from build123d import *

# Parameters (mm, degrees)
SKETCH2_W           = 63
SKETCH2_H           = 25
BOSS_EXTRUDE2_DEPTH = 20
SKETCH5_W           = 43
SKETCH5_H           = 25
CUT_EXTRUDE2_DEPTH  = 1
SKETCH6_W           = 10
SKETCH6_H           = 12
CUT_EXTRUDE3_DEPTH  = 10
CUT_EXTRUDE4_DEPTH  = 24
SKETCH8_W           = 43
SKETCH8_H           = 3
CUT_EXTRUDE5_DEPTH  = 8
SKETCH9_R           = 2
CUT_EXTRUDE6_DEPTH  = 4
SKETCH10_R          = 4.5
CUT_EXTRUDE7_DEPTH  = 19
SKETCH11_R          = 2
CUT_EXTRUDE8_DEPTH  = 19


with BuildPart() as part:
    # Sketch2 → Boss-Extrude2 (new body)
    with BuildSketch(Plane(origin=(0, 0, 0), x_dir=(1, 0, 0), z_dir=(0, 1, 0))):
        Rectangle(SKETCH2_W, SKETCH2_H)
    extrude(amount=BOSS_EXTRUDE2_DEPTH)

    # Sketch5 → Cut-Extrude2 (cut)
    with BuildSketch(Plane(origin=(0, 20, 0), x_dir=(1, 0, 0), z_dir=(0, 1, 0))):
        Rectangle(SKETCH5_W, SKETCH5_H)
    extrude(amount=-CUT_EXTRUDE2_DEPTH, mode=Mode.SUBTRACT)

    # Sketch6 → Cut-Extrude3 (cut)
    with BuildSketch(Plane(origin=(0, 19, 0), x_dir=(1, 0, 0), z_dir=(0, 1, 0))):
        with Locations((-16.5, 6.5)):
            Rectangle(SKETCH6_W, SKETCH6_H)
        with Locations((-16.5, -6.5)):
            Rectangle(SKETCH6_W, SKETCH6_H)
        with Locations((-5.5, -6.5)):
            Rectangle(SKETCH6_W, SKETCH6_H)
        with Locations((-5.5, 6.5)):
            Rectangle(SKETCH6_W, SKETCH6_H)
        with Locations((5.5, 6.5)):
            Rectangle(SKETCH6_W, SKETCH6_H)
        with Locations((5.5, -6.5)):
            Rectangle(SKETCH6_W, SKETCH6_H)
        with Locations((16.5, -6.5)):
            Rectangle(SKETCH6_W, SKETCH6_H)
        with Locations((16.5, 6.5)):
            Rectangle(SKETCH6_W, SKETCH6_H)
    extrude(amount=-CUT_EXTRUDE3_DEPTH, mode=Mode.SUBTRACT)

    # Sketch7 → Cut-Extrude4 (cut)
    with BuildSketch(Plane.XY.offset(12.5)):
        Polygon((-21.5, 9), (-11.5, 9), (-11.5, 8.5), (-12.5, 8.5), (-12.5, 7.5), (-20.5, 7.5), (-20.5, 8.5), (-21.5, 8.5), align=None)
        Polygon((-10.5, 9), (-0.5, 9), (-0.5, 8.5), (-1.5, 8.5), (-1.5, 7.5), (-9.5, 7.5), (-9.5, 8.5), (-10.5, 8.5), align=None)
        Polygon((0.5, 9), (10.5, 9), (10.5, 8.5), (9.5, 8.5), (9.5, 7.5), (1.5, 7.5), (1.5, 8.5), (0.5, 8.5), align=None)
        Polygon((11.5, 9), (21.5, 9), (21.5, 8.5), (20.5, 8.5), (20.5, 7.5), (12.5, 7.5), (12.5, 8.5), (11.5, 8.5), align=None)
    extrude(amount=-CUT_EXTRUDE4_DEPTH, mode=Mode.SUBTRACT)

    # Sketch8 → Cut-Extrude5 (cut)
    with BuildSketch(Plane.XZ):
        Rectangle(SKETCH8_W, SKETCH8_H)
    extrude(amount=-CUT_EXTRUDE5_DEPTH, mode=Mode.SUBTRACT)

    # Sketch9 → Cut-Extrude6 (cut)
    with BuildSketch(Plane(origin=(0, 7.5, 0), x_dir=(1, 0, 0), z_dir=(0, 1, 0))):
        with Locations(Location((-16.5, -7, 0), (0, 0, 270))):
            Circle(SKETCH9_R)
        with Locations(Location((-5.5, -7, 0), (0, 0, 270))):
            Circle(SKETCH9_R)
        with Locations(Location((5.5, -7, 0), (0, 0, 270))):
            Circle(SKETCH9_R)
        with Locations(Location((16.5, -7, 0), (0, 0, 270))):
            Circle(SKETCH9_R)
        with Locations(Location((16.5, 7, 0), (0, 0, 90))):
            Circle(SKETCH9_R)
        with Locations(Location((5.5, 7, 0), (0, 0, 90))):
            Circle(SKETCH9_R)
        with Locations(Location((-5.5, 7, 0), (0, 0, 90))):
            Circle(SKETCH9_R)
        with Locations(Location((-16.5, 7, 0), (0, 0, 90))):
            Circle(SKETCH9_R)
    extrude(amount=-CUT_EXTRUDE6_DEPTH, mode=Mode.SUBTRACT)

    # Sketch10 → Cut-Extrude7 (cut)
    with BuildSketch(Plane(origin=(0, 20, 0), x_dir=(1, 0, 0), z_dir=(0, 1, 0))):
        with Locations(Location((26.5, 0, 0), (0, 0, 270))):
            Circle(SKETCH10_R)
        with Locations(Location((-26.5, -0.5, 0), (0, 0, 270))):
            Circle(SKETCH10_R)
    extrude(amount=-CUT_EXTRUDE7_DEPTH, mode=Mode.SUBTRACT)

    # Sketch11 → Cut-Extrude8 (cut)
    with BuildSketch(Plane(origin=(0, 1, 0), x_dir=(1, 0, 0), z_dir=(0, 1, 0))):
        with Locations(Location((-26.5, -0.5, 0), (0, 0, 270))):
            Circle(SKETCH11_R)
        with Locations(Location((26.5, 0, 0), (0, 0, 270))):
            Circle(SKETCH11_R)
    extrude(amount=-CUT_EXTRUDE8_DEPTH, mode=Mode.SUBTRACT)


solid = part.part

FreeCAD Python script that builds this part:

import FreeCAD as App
import Part
import Sketcher

V = App.Vector
Q = App.Units.Quantity


def add_polygon(sketch, points):
    """Adds a closed chain of lines whose ends are joined by coincident constraints."""
    first, n = sketch.GeometryCount, len(points)
    for a, b in zip(points, points[1:] + points[:1]):
        sketch.addGeometry(Part.LineSegment(App.Vector(*a, 0), App.Vector(*b, 0)), False)
    for i in range(n):
        sketch.addConstraint(Sketcher.Constraint("Coincident", first + i, 2, first + (i + 1) % n, 1))

doc = App.newDocument("Part")
params = doc.addObject("Spreadsheet::Sheet", "Params")
for row, (alias, value) in enumerate([
    ("sketch1_width", "63 mm"),
    ("sketch1_height", "25 mm"),
    ("pad1_length", "20 mm"),
    ("sketch2_width", "43 mm"),
    ("sketch2_height", "25 mm"),
    ("pocket1_length", "1 mm"),
    ("sketch3_width", "10 mm"),
    ("sketch3_height", "12 mm"),
    ("pocket2_length", "10 mm"),
    ("sketch4_width", "10 mm"),
    ("sketch4_width2", "1 mm"),
    ("sketch4_height", "0.5 mm"),
    ("pocket3_length", "24 mm"),
    ("sketch5_width", "43 mm"),
    ("sketch5_height", "3 mm"),
    ("pocket4_length", "8 mm"),
    ("sketch6_diameter", "4 mm"),
    ("pocket5_length", "4 mm"),
    ("sketch7_diameter", "9 mm"),
    ("pocket6_length", "19 mm"),
    ("sketch8_diameter", "4 mm"),
    ("pocket7_length", "19 mm"),
], start=1):
    params.set(f"A{row}", alias)
    params.set(f"B{row}", "=" + value)
    params.setAlias(f"B{row}", alias)

body = doc.addObject("PartDesign::Body", "Body")

# Sketch on XZ plane
sketch1 = doc.addObject("Sketcher::SketchObject", "Sketch")
body.addObject(sketch1)
sketch1.AttachmentSupport = (doc.XZ_Plane, [""])
sketch1.MapMode = "FlatFace"
add_polygon(sketch1, [(-32, -12), (-32, 12), (32, 12), (32, -12)])  # lines 0-3
sketch1.addConstraint([
    Sketcher.Constraint("Vertical", 0),
    Sketcher.Constraint("Horizontal", 1),
    Sketcher.Constraint("Vertical", 2),
    Sketcher.Constraint("Horizontal", 3),
    Sketcher.Constraint("Symmetric", 0, 2, 2, 2, -1, 1),
    Sketcher.Constraint("DistanceX", 1, 1, 1, 2, Q("63 mm")),
    Sketcher.Constraint("DistanceY", 0, 1, 0, 2, Q("25 mm")),
])
sketch1.setExpression("Constraints[9]", "Params.sketch1_width")
sketch1.setExpression("Constraints[10]", "Params.sketch1_height")
pad1 = doc.addObject("PartDesign::Pad", "Pad")
body.addObject(pad1)
pad1.Profile = sketch1
pad1.setExpression("Length", "Params.pad1_length")
pad1.Reversed = True

# Sketch on XZ plane
sketch2 = doc.addObject("Sketcher::SketchObject", "Sketch001")
body.addObject(sketch2)
sketch2.AttachmentSupport = (doc.XZ_Plane, [""])
sketch2.MapMode = "FlatFace"
sketch2.AttachmentOffset = App.Placement(V(0, 0, -20), App.Rotation())
add_polygon(sketch2, [(-22, -12), (-22, 12), (22, 12), (22, -12)])  # lines 0-3
sketch2.addConstraint([
    Sketcher.Constraint("Vertical", 0),
    Sketcher.Constraint("Horizontal", 1),
    Sketcher.Constraint("Vertical", 2),
    Sketcher.Constraint("Horizontal", 3),
    Sketcher.Constraint("Symmetric", 0, 2, 2, 2, -1, 1),
    Sketcher.Constraint("DistanceX", 1, 1, 1, 2, Q("43 mm")),
    Sketcher.Constraint("DistanceY", 0, 1, 0, 2, Q("25 mm")),
])
sketch2.setExpression("Constraints[9]", "Params.sketch2_width")
sketch2.setExpression("Constraints[10]", "Params.sketch2_height")
pocket1 = doc.addObject("PartDesign::Pocket", "Pocket")
body.addObject(pocket1)
pocket1.Profile = sketch2
pocket1.setExpression("Length", "Params.pocket1_length")
pocket1.Reversed = True

# Sketch on XZ plane
sketch3 = doc.addObject("Sketcher::SketchObject", "Sketch002")
body.addObject(sketch3)
sketch3.AttachmentSupport = (doc.XZ_Plane, [""])
sketch3.MapMode = "FlatFace"
sketch3.AttachmentOffset = App.Placement(V(0, 0, -19), App.Rotation())
add_polygon(sketch3, [(-21.5, -12.5), (-21.5, -0.5), (-11.5, -0.5), (-11.5, -12.5)])  # lines 0-3
add_polygon(sketch3, [(-21.5, 0.5), (-21.5, 12.5), (-11.5, 12.5), (-11.5, 0.5)])  # lines 4-7
add_polygon(sketch3, [(-10.5, 0.5), (-10.5, 12.5), (-0.5, 12.5), (-0.5, 0.5)])  # lines 8-11
add_polygon(sketch3, [(-10.5, -12.5), (-10.5, -0.5), (-0.5, -0.5), (-0.5, -12.5)])  # lines 12-15
add_polygon(sketch3, [(0.5, -12.5), (0.5, -0.5), (10.5, -0.5), (10.5, -12.5)])  # lines 16-19
add_polygon(sketch3, [(0.5, 0.5), (0.5, 12.5), (10.5, 12.5), (10.5, 0.5)])  # lines 20-23
add_polygon(sketch3, [(11.5, 0.5), (11.5, 12.5), (21.5, 12.5), (21.5, 0.5)])  # lines 24-27
add_polygon(sketch3, [(11.5, -12.5), (11.5, -0.5), (21.5, -0.5), (21.5, -12.5)])  # lines 28-31
sketch3.addConstraint([
    Sketcher.Constraint("Vertical", 0),
    Sketcher.Constraint("Horizontal", 1),
    Sketcher.Constraint("Vertical", 2),
    Sketcher.Constraint("Horizontal", 3),
    Sketcher.Constraint("Vertical", 4),
    Sketcher.Constraint("Horizontal", 5),
    Sketcher.Constraint("Vertical", 6),
    Sketcher.Constraint("Horizontal", 7),
    Sketcher.Constraint("Vertical", 8),
    Sketcher.Constraint("Horizontal", 9),
    Sketcher.Constraint("Vertical", 10),
    Sketcher.Constraint("Horizontal", 11),
    Sketcher.Constraint("Vertical", 12),
    Sketcher.Constraint("Horizontal", 13),
    Sketcher.Constraint("Vertical", 14),
    Sketcher.Constraint("Horizontal", 15),
    Sketcher.Constraint("Vertical", 16),
    Sketcher.Constraint("Horizontal", 17),
    Sketcher.Constraint("Vertical", 18),
    Sketcher.Constraint("Horizontal", 19),
    Sketcher.Constraint("Vertical", 20),
    Sketcher.Constraint("Horizontal", 21),
    Sketcher.Constraint("Vertical", 22),
    Sketcher.Constraint("Horizontal", 23),
    Sketcher.Constraint("Vertical", 24),
    Sketcher.Constraint("Horizontal", 25),
    Sketcher.Constraint("Vertical", 26),
    Sketcher.Constraint("Horizontal", 27),
    Sketcher.Constraint("Vertical", 28),
    Sketcher.Constraint("Horizontal", 29),
    Sketcher.Constraint("Vertical", 30),
    Sketcher.Constraint("Horizontal", 31),
    Sketcher.Constraint("Symmetric", 10, 2, 16, 2, -1, 1),
    Sketcher.Constraint("Symmetric", 8, 2, 18, 2, -1, 1),
    Sketcher.Constraint("Symmetric", 14, 2, 20, 2, -1, 1),
    Sketcher.Constraint("Symmetric", 12, 2, 22, 2, -1, 1),
    Sketcher.Constraint("Symmetric", 2, 2, 24, 2, -1, 1),
    Sketcher.Constraint("Symmetric", 0, 2, 26, 2, -1, 1),
    Sketcher.Constraint("Symmetric", 6, 2, 28, 2, -1, 1),
    Sketcher.Constraint("Symmetric", 4, 2, 30, 2, -1, 1),
    Sketcher.Constraint("Symmetric", 13, 2, 16, 2, -2),
    Sketcher.Constraint("Symmetric", 15, 2, 18, 2, -2),
    Sketcher.Constraint("Symmetric", 5, 2, 24, 2, -2),
    Sketcher.Constraint("Symmetric", 7, 2, 26, 2, -2),
    Sketcher.Constraint("Horizontal", 5, 2, 8, 2),
    Sketcher.Constraint("Horizontal", 7, 2, 10, 2),
    Sketcher.Constraint("Equal", 7, 9),
    Sketcher.Constraint("DistanceX", 1, 1, 1, 2, Q("10 mm")),
    Sketcher.Constraint("DistanceY", 0, 1, 0, 2, Q("12 mm")),
    Sketcher.Constraint("DistanceY", 0, 2, 4, 2, Q("13 mm")),
    Sketcher.Constraint("DistanceX", 5, 2, 8, 2, Q("1 mm")),
    Sketcher.Constraint("DistanceX", 13, 2, 16, 2, Q("1 mm")),
])
sketch3.setExpression("Constraints[79]", "Params.sketch3_width")
sketch3.setExpression("Constraints[80]", "Params.sketch3_height")
pocket2 = doc.addObject("PartDesign::Pocket", "Pocket001")
body.addObject(pocket2)
pocket2.Profile = sketch3
pocket2.setExpression("Length", "Params.pocket2_length")
pocket2.Reversed = True

# Sketch on XY plane
sketch4 = doc.addObject("Sketcher::SketchObject", "Sketch003")
body.addObject(sketch4)
sketch4.AttachmentSupport = (doc.XY_Plane, [""])
sketch4.MapMode = "FlatFace"
sketch4.AttachmentOffset = App.Placement(V(0, 0, 12.5), App.Rotation())
add_polygon(sketch4, [(-11.5, 9), (-21.5, 9), (-21.5, 8.5), (-20.5, 8.5), (-20.5, 7.5), (-12.5, 7.5), (-12.5, 8.5), (-11.5, 8.5)])  # lines 0-7
add_polygon(sketch4, [(-0.5, 9), (-10.5, 9), (-10.5, 8.5), (-9.5, 8.5), (-9.5, 7.5), (-1.5, 7.5), (-1.5, 8.5), (-0.5, 8.5)])  # lines 8-15
add_polygon(sketch4, [(10.5, 9), (0.5, 9), (0.5, 8.5), (1.5, 8.5), (1.5, 7.5), (9.5, 7.5), (9.5, 8.5), (10.5, 8.5)])  # lines 16-23
add_polygon(sketch4, [(21.5, 9), (11.5, 9), (11.5, 8.5), (12.5, 8.5), (12.5, 7.5), (20.5, 7.5), (20.5, 8.5), (21.5, 8.5)])  # lines 24-31
sketch4.addConstraint([
    Sketcher.Constraint("Horizontal", 0),
    Sketcher.Constraint("Vertical", 1),
    Sketcher.Constraint("Horizontal", 2),
    Sketcher.Constraint("Vertical", 3),
    Sketcher.Constraint("Horizontal", 4),
    Sketcher.Constraint("Vertical", 5),
    Sketcher.Constraint("Horizontal", 6),
    Sketcher.Constraint("Vertical", 7),
    Sketcher.Constraint("Horizontal", 8),
    Sketcher.Constraint("Vertical", 9),
    Sketcher.Constraint("Horizontal", 10),
    Sketcher.Constraint("Vertical", 11),
    Sketcher.Constraint("Horizontal", 12),
    Sketcher.Constraint("Vertical", 13),
    Sketcher.Constraint("Horizontal", 14),
    Sketcher.Constraint("Vertical", 15),
    Sketcher.Constraint("Horizontal", 16),
    Sketcher.Constraint("Vertical", 17),
    Sketcher.Constraint("Horizontal", 18),
    Sketcher.Constraint("Vertical", 19),
    Sketcher.Constraint("Horizontal", 20),
    Sketcher.Constraint("Vertical", 21),
    Sketcher.Constraint("Horizontal", 22),
    Sketcher.Constraint("Vertical", 23),
    Sketcher.Constraint("Horizontal", 24),
    Sketcher.Constraint("Vertical", 25),
    Sketcher.Constraint("Horizontal", 26),
    Sketcher.Constraint("Vertical", 27),
    Sketcher.Constraint("Horizontal", 28),
    Sketcher.Constraint("Vertical", 29),
    Sketcher.Constraint("Horizontal", 30),
    Sketcher.Constraint("Vertical", 31),
    Sketcher.Constraint("Symmetric", 15, 2, 16, 2, -2),
    Sketcher.Constraint("Symmetric", 13, 2, 18, 2, -2),
    Sketcher.Constraint("Symmetric", 11, 2, 20, 2, -2),
    Sketcher.Constraint("Symmetric", 9, 2, 22, 2, -2),
    Sketcher.Constraint("Symmetric", 7, 2, 24, 2, -2),
    Sketcher.Constraint("Symmetric", 5, 2, 26, 2, -2),
    Sketcher.Constraint("Symmetric", 3, 2, 28, 2, -2),
    Sketcher.Constraint("Symmetric", 1, 2, 30, 2, -2),
    Sketcher.Constraint("Horizontal", 2, 2, 5, 2),
    Sketcher.Constraint("Horizontal", 7, 2, 8, 2),
    Sketcher.Constraint("Horizontal", 6, 2, 9, 2),
    Sketcher.Constraint("Horizontal", 4, 2, 11, 2),
    Sketcher.Constraint("Horizontal", 10, 2, 13, 2),
    Sketcher.Constraint("Equal", 2, 6),
    Sketcher.Constraint("Equal", 0, 8),
    Sketcher.Constraint("Equal", 6, 10),
    Sketcher.Constraint("Equal", 4, 12),
    Sketcher.Constraint("Equal", 30, 3),
    Sketcher.Constraint("DistanceX", 0, 2, 0, 1, Q("10 mm")),
    Sketcher.Constraint("DistanceX", 2, 1, 2, 2, Q("1 mm")),
    Sketcher.Constraint("DistanceY", 1, 2, 1, 1, Q("0.5 mm")),
    Sketcher.Constraint("DistanceY", -1, 1, 0, 2, Q("9 mm")),
    Sketcher.Constraint("DistanceX", 7, 2, 8, 2, Q("1 mm")),
    Sketcher.Constraint("DistanceX", 15, 2, 16, 2, Q("1 mm")),
])
sketch4.setExpression("Constraints[82]", "Params.sketch4_width")
sketch4.setExpression("Constraints[83]", "Params.sketch4_width2")
sketch4.setExpression("Constraints[84]", "Params.sketch4_height")
pocket3 = doc.addObject("PartDesign::Pocket", "Pocket002")
body.addObject(pocket3)
pocket3.Profile = sketch4
pocket3.setExpression("Length", "Params.pocket3_length")

# Sketch on XZ plane
sketch5 = doc.addObject("Sketcher::SketchObject", "Sketch004")
body.addObject(sketch5)
sketch5.AttachmentSupport = (doc.XZ_Plane, [""])
sketch5.MapMode = "FlatFace"
add_polygon(sketch5, [(-21.5, 1.5), (-21.5, -1.5), (21.5, -1.5), (21.5, 1.5)])  # lines 0-3
sketch5.addConstraint([
    Sketcher.Constraint("Vertical", 0),
    Sketcher.Constraint("Horizontal", 1),
    Sketcher.Constraint("Vertical", 2),
    Sketcher.Constraint("Horizontal", 3),
    Sketcher.Constraint("Symmetric", 0, 2, 2, 2, -1, 1),
    Sketcher.Constraint("DistanceX", 1, 1, 1, 2, Q("43 mm")),
    Sketcher.Constraint("DistanceY", 0, 2, 0, 1, Q("3 mm")),
])
sketch5.setExpression("Constraints[9]", "Params.sketch5_width")
sketch5.setExpression("Constraints[10]", "Params.sketch5_height")
pocket4 = doc.addObject("PartDesign::Pocket", "Pocket003")
body.addObject(pocket4)
pocket4.Profile = sketch5
pocket4.setExpression("Length", "Params.pocket4_length")

# Sketch on XZ plane
sketch6 = doc.addObject("Sketcher::SketchObject", "Sketch005")
body.addObject(sketch6)
sketch6.AttachmentSupport = (doc.XZ_Plane, [""])
sketch6.MapMode = "FlatFace"
sketch6.AttachmentOffset = App.Placement(V(0, 0, -7.5), App.Rotation())
sketch6.addGeometry([
    Part.Circle(V(-16.5, 7, 0), V(0, 0, 1), 2),  # 0
    Part.Circle(V(-5.5, 7, 0), V(0, 0, 1), 2),  # 1
    Part.Circle(V(5.5, 7, 0), V(0, 0, 1), 2),  # 2
    Part.Circle(V(16.5, 7, 0), V(0, 0, 1), 2),  # 3
    Part.Circle(V(16.5, -7, 0), V(0, 0, 1), 2),  # 4
    Part.Circle(V(5.5, -7, 0), V(0, 0, 1), 2),  # 5
    Part.Circle(V(-5.5, -7, 0), V(0, 0, 1), 2),  # 6
    Part.Circle(V(-16.5, -7, 0), V(0, 0, 1), 2),  # 7
], False)
sketch6.addConstraint([
    Sketcher.Constraint("Equal", 0, 1),
    Sketcher.Constraint("Equal", 1, 2),
    Sketcher.Constraint("Equal", 2, 3),
    Sketcher.Constraint("Equal", 3, 4),
    Sketcher.Constraint("Equal", 4, 5),
    Sketcher.Constraint("Equal", 5, 6),
    Sketcher.Constraint("Equal", 6, 7),
    Sketcher.Constraint("Symmetric", 0, 3, 4, 3, -1, 1),
    Sketcher.Constraint("Symmetric", 1, 3, 5, 3, -1, 1),
    Sketcher.Constraint("Symmetric", 2, 3, 6, 3, -1, 1),
    Sketcher.Constraint("Symmetric", 3, 3, 7, 3, -1, 1),
    Sketcher.Constraint("Symmetric", 1, 3, 2, 3, -2),
    Sketcher.Constraint("Symmetric", 0, 3, 3, 3, -2),
    Sketcher.Constraint("Horizontal", 0, 3, 1, 3),
    Sketcher.Constraint("Diameter", 0, Q("4 mm")),
    Sketcher.Constraint("DistanceY", -1, 1, 0, 3, Q("7 mm")),
    Sketcher.Constraint("DistanceX", 0, 3, 1, 3, Q("11 mm")),
    Sketcher.Constraint("DistanceX", 1, 3, 2, 3, Q("11 mm")),
])
sketch6.setExpression("Constraints[14]", "Params.sketch6_diameter")
pocket5 = doc.addObject("PartDesign::Pocket", "Pocket004")
body.addObject(pocket5)
pocket5.Profile = sketch6
pocket5.setExpression("Length", "Params.pocket5_length")
pocket5.Reversed = True

# Sketch on XZ plane
sketch7 = doc.addObject("Sketcher::SketchObject", "Sketch006")
body.addObject(sketch7)
sketch7.AttachmentSupport = (doc.XZ_Plane, [""])
sketch7.MapMode = "FlatFace"
sketch7.AttachmentOffset = App.Placement(V(0, 0, -20), App.Rotation())
sketch7.addGeometry([
    Part.Circle(V(26.5, 0, 0), V(0, 0, 1), 4.5),
    Part.Circle(V(-26.5, 0.5, 0), V(0, 0, 1), 4.5),
], False)
sketch7.addConstraint([
    Sketcher.Constraint("Equal", 0, 1),
    Sketcher.Constraint("PointOnObject", 0, 3, -1),
    Sketcher.Constraint("Diameter", 0, Q("9 mm")),
    Sketcher.Constraint("DistanceX", 1, 3, 0, 3, Q("53 mm")),
    Sketcher.Constraint("DistanceX", -1, 1, 0, 3, Q("26.5 mm")),
    Sketcher.Constraint("DistanceY", -1, 1, 1, 3, Q("0.5 mm")),
])
sketch7.setExpression("Constraints[2]", "Params.sketch7_diameter")
pocket6 = doc.addObject("PartDesign::Pocket", "Pocket005")
body.addObject(pocket6)
pocket6.Profile = sketch7
pocket6.setExpression("Length", "Params.pocket6_length")
pocket6.Reversed = True

# Sketch on XZ plane
sketch8 = doc.addObject("Sketcher::SketchObject", "Sketch007")
body.addObject(sketch8)
sketch8.AttachmentSupport = (doc.XZ_Plane, [""])
sketch8.MapMode = "FlatFace"
sketch8.AttachmentOffset = App.Placement(V(0, 0, -1), App.Rotation())
sketch8.addGeometry([
    Part.Circle(V(-26.5, 0.5, 0), V(0, 0, 1), 2),
    Part.Circle(V(26.5, 0, 0), V(0, 0, 1), 2),
], False)
sketch8.addConstraint([
    Sketcher.Constraint("Equal", 0, 1),
    Sketcher.Constraint("PointOnObject", 1, 3, -1),
    Sketcher.Constraint("Diameter", 0, Q("4 mm")),
    Sketcher.Constraint("DistanceX", 0, 3, 1, 3, Q("53 mm")),
    Sketcher.Constraint("DistanceX", 0, 3, -1, 1, Q("26.5 mm")),
    Sketcher.Constraint("DistanceY", -1, 1, 0, 3, Q("0.5 mm")),
])
sketch8.setExpression("Constraints[2]", "Params.sketch8_diameter")
pocket7 = doc.addObject("PartDesign::Pocket", "Pocket006")
body.addObject(pocket7)
pocket7.Profile = sketch8
pocket7.setExpression("Length", "Params.pocket7_length")
pocket7.Reversed = True

doc.recompute()
